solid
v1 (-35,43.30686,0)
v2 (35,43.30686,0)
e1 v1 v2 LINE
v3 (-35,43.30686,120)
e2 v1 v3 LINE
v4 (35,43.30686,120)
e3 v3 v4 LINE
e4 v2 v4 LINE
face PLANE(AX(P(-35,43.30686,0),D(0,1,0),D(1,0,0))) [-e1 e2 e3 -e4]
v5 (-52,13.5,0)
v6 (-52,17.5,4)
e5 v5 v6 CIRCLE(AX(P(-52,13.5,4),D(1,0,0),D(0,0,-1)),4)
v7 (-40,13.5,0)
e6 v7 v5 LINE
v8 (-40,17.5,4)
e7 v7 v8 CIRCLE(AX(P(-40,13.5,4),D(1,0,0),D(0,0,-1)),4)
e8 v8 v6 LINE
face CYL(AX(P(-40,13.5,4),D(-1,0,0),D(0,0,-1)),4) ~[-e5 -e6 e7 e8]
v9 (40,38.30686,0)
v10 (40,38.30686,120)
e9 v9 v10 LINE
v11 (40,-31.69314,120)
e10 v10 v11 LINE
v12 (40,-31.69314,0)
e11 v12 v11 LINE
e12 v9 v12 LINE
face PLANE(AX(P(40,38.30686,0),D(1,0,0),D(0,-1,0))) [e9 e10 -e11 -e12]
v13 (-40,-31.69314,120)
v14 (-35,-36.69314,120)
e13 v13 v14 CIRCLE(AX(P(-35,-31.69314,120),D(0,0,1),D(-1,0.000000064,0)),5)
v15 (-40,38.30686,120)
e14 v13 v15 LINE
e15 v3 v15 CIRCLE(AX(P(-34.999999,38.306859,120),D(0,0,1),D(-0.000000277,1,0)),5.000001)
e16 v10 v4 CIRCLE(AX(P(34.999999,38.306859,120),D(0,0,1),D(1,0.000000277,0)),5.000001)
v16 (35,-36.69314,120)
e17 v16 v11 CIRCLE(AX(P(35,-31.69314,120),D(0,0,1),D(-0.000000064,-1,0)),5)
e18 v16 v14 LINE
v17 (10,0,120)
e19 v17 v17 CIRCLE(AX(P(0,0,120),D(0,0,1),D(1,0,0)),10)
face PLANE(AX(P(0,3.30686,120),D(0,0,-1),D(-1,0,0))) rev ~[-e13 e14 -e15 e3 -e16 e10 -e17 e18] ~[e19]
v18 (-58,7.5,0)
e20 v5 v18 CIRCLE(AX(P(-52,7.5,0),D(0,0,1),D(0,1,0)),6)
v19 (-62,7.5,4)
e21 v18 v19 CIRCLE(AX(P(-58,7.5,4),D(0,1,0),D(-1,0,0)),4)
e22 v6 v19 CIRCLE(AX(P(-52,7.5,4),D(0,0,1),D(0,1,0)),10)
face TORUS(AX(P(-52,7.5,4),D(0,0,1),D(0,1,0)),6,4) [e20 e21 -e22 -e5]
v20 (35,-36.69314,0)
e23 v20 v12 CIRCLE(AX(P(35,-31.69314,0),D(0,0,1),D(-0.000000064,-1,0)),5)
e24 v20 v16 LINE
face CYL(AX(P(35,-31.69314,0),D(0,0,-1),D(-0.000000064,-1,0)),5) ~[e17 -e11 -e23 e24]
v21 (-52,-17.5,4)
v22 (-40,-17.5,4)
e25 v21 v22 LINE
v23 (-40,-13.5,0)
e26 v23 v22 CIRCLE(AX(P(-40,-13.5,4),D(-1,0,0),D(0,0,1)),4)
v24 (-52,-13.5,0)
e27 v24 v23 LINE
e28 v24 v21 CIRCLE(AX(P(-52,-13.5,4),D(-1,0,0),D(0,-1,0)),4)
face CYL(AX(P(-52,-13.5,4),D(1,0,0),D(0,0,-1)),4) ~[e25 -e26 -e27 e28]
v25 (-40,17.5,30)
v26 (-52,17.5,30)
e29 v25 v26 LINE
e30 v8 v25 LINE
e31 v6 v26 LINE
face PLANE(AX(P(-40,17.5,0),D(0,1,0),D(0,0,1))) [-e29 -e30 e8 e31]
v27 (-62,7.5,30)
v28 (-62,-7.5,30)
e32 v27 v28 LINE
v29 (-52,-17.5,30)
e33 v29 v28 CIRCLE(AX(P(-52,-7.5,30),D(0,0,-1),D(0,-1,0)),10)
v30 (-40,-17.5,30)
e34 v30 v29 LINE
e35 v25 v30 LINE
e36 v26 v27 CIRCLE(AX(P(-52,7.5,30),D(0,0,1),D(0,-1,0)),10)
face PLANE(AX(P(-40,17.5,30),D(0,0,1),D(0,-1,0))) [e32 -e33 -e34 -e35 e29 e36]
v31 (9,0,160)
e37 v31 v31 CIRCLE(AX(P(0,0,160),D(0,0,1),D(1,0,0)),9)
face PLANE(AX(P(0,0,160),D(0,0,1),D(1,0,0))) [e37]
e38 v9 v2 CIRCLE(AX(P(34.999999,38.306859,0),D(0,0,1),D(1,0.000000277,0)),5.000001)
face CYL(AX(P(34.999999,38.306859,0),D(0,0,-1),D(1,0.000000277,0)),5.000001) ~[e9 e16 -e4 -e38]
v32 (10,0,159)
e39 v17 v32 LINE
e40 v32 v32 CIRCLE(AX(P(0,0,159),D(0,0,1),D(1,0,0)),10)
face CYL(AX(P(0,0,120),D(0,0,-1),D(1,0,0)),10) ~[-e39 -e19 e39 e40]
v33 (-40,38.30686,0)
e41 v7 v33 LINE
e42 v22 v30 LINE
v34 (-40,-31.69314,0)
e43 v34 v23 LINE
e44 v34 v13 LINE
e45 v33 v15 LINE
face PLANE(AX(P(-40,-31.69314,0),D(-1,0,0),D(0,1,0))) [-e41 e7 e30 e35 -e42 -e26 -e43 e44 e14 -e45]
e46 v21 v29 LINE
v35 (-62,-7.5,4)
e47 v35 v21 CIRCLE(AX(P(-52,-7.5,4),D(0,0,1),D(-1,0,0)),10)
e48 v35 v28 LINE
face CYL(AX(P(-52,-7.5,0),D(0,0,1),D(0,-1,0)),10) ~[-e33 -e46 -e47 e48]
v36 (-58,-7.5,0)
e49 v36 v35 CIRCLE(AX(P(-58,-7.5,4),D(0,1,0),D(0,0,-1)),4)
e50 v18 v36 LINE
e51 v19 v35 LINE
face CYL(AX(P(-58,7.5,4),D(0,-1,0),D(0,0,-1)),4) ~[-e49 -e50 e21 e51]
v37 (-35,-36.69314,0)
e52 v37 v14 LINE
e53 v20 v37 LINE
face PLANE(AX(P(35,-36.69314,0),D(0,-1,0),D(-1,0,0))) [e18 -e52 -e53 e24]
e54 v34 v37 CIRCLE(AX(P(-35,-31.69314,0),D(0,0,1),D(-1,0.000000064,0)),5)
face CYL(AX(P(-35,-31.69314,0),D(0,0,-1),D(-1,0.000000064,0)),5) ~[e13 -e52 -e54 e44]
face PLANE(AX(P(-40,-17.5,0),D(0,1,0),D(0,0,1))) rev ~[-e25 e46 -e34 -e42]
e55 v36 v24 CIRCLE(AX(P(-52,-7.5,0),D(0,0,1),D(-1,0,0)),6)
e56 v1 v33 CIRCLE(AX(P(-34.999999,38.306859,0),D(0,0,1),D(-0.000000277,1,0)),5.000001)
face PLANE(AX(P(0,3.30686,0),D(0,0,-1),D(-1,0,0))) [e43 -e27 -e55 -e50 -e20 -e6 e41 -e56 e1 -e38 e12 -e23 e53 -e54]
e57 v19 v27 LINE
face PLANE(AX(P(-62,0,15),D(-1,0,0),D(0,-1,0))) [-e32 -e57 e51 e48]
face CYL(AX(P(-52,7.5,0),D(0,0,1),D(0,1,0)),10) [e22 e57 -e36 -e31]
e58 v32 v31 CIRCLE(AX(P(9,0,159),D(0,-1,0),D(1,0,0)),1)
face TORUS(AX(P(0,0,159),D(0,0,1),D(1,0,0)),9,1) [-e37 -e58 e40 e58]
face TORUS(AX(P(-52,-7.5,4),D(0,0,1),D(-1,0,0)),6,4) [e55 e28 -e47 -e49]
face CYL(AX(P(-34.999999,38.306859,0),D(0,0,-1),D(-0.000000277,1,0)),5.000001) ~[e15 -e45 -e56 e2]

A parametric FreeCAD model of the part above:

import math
import FreeCAD as App
import Part
import Sketcher
from FreeCAD import Vector


def edges_at(feature, points):
    """Names of the edges that pass closest to the given points."""
    edges = feature.Shape.Edges
    near = lambda p: min(range(len(edges)), key=lambda i: edges[i].distToShape(Part.Vertex(*p))[0])
    return sorted({f"Edge{near(p) + 1}" for p in points})


def add_polygon(sketch, points):
    """Adds a closed chain of lines whose ends are joined by coincident constraints."""
    first, n = sketch.GeometryCount, len(points)
    for a, b in zip(points, points[1:] + points[:1]):
        sketch.addGeometry(Part.LineSegment(App.Vector(*a, 0), App.Vector(*b, 0)), False)
    for i in range(n):
        sketch.addConstraint(Sketcher.Constraint("Coincident", first + i, 2, first + (i + 1) % n, 1))

doc = App.newDocument("Part")
body = doc.addObject("PartDesign::Body", "Body")

# Sketch on XY plane
sketch1 = doc.addObject("Sketcher::SketchObject", "Sketch")
body.addObject(sketch1)
sketch1.AttachmentSupport = (doc.XY_Plane, [""])
sketch1.MapMode = "FlatFace"
sketch1.addGeometry([
    Part.LineSegment(Vector(35, 43.3, 0), Vector(-35, 43.3, 0)),  # 0
    Part.ArcOfCircle(Part.Circle(Vector(-35, 38.3, 0), Vector(0, 0, 1), 5), math.radians(90), math.radians(180)),  # 1
    Part.LineSegment(Vector(-40, 38.3, 0), Vector(-40, -31.7, 0)),  # 2
    Part.ArcOfCircle(Part.Circle(Vector(-35, -31.7, 0), Vector(0, 0, 1), 5), math.radians(180), math.radians(270)),  # 3
    Part.LineSegment(Vector(-35, -36.7, 0), Vector(35, -36.7, 0)),  # 4
    Part.ArcOfCircle(Part.Circle(Vector(35, -31.7, 0), Vector(0, 0, 1), 5), math.radians(-90), math.radians(0)),  # 5
    Part.LineSegment(Vector(40, -31.7, 0), Vector(40, 38.3, 0)),  # 6
    Part.ArcOfCircle(Part.Circle(Vector(35, 38.3, 0), Vector(0, 0, 1), 5), math.radians(0), math.radians(90)),  # 7
], False)
sketch1.addConstraint([
    Sketcher.Constraint("Tangent", 0, 2, 1, 1),
    Sketcher.Constraint("Tangent", 1, 2, 2, 1),
    Sketcher.Constraint("Tangent", 2, 2, 3, 1),
    Sketcher.Constraint("Tangent", 3, 2, 4, 1),
    Sketcher.Constraint("Tangent", 4, 2, 5, 1),
    Sketcher.Constraint("Tangent", 5, 2, 6, 1),
    Sketcher.Constraint("Tangent", 6, 2, 7, 1),
    Sketcher.Constraint("Tangent", 7, 2, 0, 1),
    Sketcher.Constraint("Horizontal", 0),
    Sketcher.Constraint("Vertical", 2),
    Sketcher.Constraint("Horizontal", 4),
    Sketcher.Constraint("Vertical", 6),
    Sketcher.Constraint("Equal", 1, 3),
    Sketcher.Constraint("Equal", 3, 5),
    Sketcher.Constraint("Equal", 5, 7),
    Sketcher.Constraint("Equal", 4, 2),
    Sketcher.Constraint("Radius", 1, 5.000001),
    Sketcher.Constraint("DistanceX", 0, 2, 0, 1, 70.0),
    Sketcher.Constraint("DistanceX", 1, 3, -1, 1, 34.999999),
    Sketcher.Constraint("DistanceY", -1, 1, 1, 3, 38.306859),
])
pad1 = doc.addObject("PartDesign::Pad", "Pad")
body.addObject(pad1)
pad1.Profile = sketch1
pad1.Length = 120

# Sketch on XY plane
sketch2 = doc.addObject("Sketcher::SketchObject", "Sketch001")
body.addObject(sketch2)
sketch2.AttachmentSupport = (doc.XY_Plane, [""])
sketch2.MapMode = "FlatFace"
sketch2.AttachmentOffset = App.Placement(Vector(0, 0, 120), App.Rotation())
sketch2.addGeometry(Part.Circle(Vector(0, 0, 0), Vector(0, 0, 1), 10), False)
sketch2.addConstraint([
    Sketcher.Constraint("Coincident", 0, 3, -1, 1),
    Sketcher.Constraint("Diameter", 0, 20.0),
])
pad2 = doc.addObject("PartDesign::Pad", "Pad001")
body.addObject(pad2)
pad2.Profile = sketch2
pad2.Length = 40
doc.recompute()

fillet = doc.addObject("PartDesign::Fillet", "Fillet")
body.addObject(fillet)
fillet.Base = (pad2, edges_at(pad2, [(-10, 0, 160)]))
fillet.Radius = 1

# Sketch on YZ plane
sketch3 = doc.addObject("Sketcher::SketchObject", "Sketch002")
body.addObject(sketch3)
sketch3.AttachmentSupport = (doc.YZ_Plane, [""])
sketch3.MapMode = "FlatFace"
sketch3.AttachmentOffset = App.Placement(Vector(0, 0, -40), App.Rotation())
add_polygon(sketch3, [(18, 30), (18, 0), (-18, 0), (-18, 30)])  # lines 0-3
sketch3.addConstraint([
    Sketcher.Constraint("Vertical", 0),
    Sketcher.Constraint("Horizontal", 1),
    Sketcher.Constraint("Vertical", 2),
    Sketcher.Constraint("Horizontal", 3),
    Sketcher.Constraint("Symmetric", 0, 2, 1, 2, -1, 1),
    Sketcher.Constraint("DistanceX", 1, 2, 1, 1, 35.0),
    Sketcher.Constraint("DistanceY", 0, 2, 0, 1, 30.0),
])
pad3 = doc.addObject("PartDesign::Pad", "Pad002")
body.addObject(pad3)
pad3.Profile = sketch3
pad3.Length = 22
pad3.Reversed = True
doc.recompute()

fillet2 = doc.addObject("PartDesign::Fillet", "Fillet001")
body.addObject(fillet2)
fillet2.Base = (pad3, edges_at(pad3, [(-62, 17.5, 15), (-62, -17.5, 15)]))
fillet2.Radius = 10
doc.recompute()

fillet3 = doc.addObject("PartDesign::Fillet", "Fillet002")
body.addObject(fillet3)
fillet3.Base = (fillet2, edges_at(fillet2, [(-62, 0, 0)]))
fillet3.Radius = 4

doc.recompute()
